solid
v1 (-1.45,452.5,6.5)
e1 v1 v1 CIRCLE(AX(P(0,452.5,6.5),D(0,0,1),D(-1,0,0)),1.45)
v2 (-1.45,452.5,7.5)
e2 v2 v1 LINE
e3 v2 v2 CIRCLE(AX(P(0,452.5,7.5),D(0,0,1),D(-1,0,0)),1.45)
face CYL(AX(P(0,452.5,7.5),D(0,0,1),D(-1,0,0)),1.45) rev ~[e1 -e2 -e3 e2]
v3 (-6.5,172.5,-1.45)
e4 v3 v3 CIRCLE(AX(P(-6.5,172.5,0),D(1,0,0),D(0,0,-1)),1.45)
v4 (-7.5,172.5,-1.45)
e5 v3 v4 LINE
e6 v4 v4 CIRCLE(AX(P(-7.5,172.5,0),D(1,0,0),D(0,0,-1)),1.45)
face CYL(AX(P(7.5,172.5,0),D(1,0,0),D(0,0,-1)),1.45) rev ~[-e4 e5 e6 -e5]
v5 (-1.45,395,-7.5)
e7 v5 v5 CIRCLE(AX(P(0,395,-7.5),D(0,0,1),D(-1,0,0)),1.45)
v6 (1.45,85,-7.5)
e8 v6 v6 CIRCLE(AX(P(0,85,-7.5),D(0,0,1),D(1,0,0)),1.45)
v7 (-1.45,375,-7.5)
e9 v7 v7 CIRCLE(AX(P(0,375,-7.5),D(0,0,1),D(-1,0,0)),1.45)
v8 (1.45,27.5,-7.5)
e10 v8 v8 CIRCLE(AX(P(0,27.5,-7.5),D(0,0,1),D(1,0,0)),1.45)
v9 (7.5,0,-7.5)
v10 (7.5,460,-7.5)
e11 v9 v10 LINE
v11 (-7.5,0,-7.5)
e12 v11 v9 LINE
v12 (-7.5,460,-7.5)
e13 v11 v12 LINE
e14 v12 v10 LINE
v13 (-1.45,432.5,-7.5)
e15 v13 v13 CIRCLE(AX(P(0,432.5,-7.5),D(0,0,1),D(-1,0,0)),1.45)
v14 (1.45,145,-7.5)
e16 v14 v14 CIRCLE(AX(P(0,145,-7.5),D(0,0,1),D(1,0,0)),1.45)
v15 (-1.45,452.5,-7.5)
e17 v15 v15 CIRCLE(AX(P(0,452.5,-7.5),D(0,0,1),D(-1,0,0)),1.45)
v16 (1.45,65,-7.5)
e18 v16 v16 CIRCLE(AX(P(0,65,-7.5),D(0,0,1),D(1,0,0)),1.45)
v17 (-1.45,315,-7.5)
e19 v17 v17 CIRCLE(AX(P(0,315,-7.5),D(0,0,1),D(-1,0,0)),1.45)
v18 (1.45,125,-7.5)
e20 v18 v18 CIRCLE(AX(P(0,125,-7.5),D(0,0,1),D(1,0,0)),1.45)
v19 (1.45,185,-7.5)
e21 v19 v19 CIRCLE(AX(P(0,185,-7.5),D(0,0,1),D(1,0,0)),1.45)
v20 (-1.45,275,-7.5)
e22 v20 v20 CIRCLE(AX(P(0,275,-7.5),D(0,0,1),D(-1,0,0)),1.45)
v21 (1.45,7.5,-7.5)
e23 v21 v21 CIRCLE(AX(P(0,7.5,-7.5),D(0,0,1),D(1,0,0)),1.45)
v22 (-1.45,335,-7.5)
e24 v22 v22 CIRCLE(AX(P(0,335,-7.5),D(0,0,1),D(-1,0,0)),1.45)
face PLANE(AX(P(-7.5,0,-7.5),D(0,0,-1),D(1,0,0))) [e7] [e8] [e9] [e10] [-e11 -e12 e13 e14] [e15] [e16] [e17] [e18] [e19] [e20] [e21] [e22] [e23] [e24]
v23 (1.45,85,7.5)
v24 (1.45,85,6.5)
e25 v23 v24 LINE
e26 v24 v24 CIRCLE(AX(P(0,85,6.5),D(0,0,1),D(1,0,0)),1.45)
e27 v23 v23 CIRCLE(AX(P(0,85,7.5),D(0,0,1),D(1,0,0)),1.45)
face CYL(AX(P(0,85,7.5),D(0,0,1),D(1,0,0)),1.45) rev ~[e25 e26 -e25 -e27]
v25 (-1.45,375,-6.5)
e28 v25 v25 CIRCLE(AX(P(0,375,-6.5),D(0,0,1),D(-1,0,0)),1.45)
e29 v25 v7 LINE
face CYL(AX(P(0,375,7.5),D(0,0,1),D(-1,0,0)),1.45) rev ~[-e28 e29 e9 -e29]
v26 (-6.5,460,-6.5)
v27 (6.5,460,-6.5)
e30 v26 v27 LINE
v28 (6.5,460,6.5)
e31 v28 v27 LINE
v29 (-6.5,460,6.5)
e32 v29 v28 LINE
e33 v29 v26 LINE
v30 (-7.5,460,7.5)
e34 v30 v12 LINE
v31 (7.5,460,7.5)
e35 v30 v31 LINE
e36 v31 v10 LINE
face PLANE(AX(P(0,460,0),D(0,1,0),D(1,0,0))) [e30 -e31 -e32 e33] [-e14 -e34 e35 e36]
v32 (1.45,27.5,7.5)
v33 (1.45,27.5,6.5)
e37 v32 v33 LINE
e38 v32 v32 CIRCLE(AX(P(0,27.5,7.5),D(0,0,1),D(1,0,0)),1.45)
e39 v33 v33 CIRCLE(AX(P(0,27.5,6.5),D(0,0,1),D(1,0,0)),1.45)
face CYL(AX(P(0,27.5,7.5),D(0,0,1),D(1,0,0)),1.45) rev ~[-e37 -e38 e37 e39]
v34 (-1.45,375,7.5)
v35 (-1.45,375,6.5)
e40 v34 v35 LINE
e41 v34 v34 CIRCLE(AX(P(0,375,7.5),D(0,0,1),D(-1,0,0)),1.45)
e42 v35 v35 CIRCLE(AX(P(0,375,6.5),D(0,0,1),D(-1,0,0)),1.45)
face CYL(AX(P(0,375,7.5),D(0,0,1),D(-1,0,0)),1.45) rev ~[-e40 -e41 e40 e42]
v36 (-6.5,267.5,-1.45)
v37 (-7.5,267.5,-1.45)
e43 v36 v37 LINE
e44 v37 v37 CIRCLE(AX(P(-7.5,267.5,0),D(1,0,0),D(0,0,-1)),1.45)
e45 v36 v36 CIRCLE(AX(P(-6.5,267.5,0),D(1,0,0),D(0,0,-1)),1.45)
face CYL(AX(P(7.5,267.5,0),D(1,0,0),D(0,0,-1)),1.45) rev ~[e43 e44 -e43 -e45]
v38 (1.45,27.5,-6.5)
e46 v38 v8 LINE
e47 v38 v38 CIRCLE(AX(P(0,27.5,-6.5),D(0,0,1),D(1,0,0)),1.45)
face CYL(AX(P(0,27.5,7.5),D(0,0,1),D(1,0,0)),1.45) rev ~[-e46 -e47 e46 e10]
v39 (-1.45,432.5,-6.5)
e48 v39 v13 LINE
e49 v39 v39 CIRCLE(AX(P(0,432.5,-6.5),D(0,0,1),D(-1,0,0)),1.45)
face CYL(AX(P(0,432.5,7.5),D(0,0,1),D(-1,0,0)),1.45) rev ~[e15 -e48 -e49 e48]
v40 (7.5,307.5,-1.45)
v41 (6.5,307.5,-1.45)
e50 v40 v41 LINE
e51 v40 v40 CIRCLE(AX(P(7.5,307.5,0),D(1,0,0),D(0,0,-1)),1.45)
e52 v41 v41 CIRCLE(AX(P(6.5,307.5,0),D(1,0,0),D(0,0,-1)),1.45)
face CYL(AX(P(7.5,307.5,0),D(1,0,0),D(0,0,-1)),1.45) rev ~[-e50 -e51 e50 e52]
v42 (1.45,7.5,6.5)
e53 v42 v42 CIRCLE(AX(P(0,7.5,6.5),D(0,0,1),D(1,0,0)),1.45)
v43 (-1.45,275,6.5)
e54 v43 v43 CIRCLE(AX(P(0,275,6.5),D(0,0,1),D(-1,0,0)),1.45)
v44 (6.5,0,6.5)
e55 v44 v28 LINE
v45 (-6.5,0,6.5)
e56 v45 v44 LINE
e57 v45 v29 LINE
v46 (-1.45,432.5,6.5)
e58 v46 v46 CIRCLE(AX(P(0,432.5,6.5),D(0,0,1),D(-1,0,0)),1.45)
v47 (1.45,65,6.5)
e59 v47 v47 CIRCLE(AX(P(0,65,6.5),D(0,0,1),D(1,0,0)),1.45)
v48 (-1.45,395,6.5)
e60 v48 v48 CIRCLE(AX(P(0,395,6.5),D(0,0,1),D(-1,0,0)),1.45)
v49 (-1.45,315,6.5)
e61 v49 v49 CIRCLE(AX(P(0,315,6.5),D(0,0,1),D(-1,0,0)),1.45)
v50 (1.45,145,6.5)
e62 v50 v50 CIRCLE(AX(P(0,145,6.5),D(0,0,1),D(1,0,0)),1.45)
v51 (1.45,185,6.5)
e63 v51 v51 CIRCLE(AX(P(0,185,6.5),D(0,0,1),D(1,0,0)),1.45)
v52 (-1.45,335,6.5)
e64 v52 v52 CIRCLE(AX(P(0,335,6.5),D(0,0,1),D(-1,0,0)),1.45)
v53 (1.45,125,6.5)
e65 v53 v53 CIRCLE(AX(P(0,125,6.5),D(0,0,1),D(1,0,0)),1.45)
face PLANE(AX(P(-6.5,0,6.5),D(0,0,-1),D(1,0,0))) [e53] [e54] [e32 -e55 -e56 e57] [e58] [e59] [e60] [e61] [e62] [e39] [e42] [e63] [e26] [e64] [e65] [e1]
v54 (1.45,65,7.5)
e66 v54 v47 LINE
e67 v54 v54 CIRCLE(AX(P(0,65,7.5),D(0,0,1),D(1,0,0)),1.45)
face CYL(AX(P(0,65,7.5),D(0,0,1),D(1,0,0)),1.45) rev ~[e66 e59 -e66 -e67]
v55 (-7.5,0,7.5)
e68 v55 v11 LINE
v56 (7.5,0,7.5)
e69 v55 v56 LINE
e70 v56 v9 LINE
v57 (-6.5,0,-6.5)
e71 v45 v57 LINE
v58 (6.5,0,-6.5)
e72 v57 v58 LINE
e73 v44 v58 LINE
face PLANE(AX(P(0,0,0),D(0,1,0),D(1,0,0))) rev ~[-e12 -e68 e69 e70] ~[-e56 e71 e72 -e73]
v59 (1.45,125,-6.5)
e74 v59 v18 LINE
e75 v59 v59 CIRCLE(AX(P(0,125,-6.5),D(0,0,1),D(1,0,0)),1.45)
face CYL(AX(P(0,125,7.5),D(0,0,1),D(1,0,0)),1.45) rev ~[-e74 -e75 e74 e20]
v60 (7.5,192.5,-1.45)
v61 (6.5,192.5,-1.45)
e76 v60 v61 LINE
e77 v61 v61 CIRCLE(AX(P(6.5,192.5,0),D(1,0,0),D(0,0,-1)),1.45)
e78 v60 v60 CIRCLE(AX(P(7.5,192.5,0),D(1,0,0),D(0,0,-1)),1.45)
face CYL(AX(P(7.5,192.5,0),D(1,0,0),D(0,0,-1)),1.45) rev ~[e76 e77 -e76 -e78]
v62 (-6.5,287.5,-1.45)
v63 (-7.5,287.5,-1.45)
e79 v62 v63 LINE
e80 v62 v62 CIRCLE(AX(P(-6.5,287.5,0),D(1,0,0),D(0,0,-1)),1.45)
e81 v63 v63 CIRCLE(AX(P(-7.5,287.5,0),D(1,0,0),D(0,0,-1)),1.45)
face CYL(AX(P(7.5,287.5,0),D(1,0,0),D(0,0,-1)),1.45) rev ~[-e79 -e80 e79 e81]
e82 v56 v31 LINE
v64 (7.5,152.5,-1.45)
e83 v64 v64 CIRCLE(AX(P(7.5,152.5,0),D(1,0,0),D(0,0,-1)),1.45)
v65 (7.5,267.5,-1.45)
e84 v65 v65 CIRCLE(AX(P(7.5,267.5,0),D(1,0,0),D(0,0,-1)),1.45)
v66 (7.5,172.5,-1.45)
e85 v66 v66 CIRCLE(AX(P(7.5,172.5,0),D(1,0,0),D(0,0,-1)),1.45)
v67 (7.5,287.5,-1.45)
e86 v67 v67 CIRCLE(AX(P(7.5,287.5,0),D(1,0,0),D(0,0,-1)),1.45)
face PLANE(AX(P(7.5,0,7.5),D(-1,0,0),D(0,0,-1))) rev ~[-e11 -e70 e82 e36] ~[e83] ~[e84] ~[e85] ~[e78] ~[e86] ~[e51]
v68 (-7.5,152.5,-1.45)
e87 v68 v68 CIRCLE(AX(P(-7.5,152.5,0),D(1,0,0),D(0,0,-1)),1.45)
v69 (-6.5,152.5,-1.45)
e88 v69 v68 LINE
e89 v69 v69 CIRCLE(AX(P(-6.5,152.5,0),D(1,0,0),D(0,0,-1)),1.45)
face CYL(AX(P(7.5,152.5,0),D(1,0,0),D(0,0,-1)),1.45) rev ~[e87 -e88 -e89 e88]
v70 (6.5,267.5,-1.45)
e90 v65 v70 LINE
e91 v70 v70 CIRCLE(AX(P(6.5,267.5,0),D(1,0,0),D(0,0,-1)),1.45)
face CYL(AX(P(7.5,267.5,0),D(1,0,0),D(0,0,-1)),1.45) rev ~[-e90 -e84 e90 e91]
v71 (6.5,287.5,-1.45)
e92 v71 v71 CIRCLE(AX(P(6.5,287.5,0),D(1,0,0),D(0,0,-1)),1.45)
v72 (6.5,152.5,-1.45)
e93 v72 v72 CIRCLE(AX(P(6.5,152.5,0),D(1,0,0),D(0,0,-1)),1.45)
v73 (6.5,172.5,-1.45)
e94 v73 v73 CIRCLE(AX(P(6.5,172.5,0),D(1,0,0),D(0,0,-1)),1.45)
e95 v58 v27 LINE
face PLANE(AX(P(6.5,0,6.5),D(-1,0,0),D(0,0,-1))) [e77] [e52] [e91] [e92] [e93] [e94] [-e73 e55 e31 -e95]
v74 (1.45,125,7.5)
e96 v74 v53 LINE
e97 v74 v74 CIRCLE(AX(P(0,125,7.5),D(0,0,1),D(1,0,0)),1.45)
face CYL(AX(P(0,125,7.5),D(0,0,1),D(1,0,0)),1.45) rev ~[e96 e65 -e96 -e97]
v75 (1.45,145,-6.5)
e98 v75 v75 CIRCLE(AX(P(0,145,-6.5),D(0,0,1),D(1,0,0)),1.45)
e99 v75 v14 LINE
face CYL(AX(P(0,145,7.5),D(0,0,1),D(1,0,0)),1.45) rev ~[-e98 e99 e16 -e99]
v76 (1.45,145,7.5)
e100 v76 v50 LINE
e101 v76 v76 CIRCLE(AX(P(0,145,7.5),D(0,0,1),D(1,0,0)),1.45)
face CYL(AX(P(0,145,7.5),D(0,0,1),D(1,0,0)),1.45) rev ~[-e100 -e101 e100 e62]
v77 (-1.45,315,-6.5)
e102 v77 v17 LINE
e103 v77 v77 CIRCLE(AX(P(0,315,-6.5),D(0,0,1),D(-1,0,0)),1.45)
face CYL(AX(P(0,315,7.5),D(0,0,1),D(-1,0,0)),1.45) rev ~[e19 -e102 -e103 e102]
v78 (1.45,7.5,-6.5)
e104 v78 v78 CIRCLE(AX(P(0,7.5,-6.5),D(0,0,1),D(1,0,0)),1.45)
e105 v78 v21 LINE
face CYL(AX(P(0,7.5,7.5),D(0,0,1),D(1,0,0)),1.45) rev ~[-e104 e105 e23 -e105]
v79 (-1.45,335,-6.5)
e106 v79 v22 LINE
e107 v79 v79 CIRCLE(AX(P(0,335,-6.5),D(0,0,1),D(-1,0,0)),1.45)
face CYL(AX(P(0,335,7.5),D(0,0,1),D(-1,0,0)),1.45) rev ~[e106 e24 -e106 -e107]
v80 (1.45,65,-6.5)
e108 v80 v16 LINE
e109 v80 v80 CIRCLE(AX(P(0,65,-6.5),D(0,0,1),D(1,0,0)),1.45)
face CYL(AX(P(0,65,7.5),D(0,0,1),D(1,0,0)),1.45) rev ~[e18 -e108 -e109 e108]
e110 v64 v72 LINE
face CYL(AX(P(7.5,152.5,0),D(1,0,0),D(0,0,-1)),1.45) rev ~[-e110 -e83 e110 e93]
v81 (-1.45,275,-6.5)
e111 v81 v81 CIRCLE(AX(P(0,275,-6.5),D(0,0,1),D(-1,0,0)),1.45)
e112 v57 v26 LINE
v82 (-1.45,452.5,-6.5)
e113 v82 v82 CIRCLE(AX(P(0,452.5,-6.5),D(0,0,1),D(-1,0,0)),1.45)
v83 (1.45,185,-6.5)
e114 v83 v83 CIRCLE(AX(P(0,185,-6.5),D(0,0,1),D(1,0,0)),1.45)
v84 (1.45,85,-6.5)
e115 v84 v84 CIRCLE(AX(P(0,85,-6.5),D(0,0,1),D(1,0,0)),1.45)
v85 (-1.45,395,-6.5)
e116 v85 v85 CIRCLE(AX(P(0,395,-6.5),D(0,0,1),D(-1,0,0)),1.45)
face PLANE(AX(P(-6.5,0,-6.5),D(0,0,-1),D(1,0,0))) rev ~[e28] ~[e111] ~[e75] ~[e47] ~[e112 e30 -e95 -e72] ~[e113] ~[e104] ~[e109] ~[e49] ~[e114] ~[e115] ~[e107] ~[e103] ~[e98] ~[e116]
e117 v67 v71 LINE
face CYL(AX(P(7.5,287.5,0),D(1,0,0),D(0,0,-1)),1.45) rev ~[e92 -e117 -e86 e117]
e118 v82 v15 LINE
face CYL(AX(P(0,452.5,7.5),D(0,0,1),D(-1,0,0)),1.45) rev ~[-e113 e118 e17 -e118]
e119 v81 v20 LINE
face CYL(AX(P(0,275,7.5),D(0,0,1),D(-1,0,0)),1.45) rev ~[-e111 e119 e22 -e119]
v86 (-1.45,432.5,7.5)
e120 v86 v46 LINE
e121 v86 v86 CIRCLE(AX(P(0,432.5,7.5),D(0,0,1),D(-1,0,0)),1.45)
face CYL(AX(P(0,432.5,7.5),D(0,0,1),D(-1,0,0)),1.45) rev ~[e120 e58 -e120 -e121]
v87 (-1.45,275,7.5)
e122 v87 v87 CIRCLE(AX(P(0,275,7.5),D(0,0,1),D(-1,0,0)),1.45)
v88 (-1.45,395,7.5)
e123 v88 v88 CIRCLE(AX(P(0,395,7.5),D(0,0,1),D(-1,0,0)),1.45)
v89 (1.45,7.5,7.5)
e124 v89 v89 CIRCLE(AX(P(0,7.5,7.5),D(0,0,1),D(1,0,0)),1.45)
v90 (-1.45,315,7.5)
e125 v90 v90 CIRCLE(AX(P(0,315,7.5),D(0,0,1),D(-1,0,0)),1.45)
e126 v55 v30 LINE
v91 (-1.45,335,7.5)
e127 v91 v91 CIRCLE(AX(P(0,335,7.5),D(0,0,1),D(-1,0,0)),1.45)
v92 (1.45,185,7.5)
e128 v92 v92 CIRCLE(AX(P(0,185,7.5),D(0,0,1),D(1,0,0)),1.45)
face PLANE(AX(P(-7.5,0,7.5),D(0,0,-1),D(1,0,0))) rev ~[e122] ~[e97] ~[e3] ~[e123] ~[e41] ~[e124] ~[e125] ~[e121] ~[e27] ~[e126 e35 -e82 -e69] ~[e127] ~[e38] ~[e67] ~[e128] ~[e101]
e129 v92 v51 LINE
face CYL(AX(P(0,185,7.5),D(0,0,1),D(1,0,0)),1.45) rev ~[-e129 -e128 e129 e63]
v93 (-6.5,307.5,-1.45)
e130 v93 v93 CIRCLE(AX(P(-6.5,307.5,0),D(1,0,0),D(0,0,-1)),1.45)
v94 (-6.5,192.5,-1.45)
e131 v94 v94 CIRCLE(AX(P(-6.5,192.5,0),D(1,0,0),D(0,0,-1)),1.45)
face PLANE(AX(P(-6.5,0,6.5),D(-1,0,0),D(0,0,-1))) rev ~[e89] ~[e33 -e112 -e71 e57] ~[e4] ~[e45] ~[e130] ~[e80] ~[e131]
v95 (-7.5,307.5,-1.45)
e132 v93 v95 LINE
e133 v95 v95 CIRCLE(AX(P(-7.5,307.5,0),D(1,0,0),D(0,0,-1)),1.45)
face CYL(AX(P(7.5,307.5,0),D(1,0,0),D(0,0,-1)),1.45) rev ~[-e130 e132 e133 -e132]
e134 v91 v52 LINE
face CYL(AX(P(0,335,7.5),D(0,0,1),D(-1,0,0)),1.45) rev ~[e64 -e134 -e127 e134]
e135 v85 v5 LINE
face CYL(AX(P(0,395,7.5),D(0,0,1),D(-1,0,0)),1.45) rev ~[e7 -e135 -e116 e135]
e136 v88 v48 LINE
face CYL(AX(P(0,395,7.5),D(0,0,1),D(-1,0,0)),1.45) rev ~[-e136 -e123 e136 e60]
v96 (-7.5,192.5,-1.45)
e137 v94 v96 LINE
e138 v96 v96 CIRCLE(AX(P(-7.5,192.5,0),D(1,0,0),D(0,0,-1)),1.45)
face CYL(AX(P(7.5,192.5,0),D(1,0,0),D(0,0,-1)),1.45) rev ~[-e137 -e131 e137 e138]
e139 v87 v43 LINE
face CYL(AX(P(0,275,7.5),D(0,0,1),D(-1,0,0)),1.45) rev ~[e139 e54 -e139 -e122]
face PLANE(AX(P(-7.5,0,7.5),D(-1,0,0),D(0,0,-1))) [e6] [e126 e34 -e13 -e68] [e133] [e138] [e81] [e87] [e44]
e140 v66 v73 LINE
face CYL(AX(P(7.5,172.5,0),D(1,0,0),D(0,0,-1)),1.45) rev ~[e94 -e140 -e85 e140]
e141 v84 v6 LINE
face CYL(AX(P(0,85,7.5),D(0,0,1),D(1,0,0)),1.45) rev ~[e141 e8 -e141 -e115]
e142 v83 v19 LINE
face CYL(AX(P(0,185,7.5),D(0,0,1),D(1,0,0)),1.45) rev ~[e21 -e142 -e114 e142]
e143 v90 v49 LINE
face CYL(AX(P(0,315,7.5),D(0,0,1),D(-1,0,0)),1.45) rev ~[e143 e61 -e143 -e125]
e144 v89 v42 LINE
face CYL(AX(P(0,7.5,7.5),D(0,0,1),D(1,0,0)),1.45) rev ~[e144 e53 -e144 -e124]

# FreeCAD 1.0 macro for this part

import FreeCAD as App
import Part
import Sketcher

doc = App.newDocument("Part")
body = doc.addObject("PartDesign::Body", "Body")

# Sketch on XZ plane
sketch1 = body.newObject("Sketcher::SketchObject", "Sketch")
sketch1.AttachmentSupport = (doc.getObject("XZ_Plane"), [""])
sketch1.MapMode = "FlatFace"
sketch1.addGeometry([
    Part.LineSegment(App.Vector(-7.5, -7.5, 0), App.Vector(-7.5, 7.5, 0)),  # 0
    Part.LineSegment(App.Vector(-7.5, 7.5, 0), App.Vector(7.5, 7.5, 0)),  # 1
    Part.LineSegment(App.Vector(7.5, 7.5, 0), App.Vector(7.5, -7.5, 0)),  # 2
    Part.LineSegment(App.Vector(7.5, -7.5, 0), App.Vector(-7.5, -7.5, 0)),  # 3
    Part.LineSegment(App.Vector(6.5, 6.5, 0), App.Vector(-6.5, 6.5, 0)),  # 4
    Part.LineSegment(App.Vector(-6.5, 6.5, 0), App.Vector(-6.5, -6.5, 0)),  # 5
    Part.LineSegment(App.Vector(-6.5, -6.5, 0), App.Vector(6.5, -6.5, 0)),  # 6
    Part.LineSegment(App.Vector(6.5, -6.5, 0), App.Vector(6.5, 6.5, 0)),  # 7
], False)
sketch1.addConstraint([
    Sketcher.Constraint("Coincident", 0, 2, 1, 1),
    Sketcher.Constraint("Coincident", 1, 2, 2, 1),
    Sketcher.Constraint("Coincident", 2, 2, 3, 1),
    Sketcher.Constraint("Coincident", 3, 2, 0, 1),
    Sketcher.Constraint("Coincident", 4, 2, 5, 1),
    Sketcher.Constraint("Coincident", 5, 2, 6, 1),
    Sketcher.Constraint("Coincident", 6, 2, 7, 1),
    Sketcher.Constraint("Coincident", 7, 2, 4, 1),
    Sketcher.Constraint("Vertical", 0),
    Sketcher.Constraint("Horizontal", 1),
    Sketcher.Constraint("Vertical", 2),
    Sketcher.Constraint("Horizontal", 3),
    Sketcher.Constraint("Horizontal", 4),
    Sketcher.Constraint("Vertical", 5),
    Sketcher.Constraint("Horizontal", 6),
    Sketcher.Constraint("Vertical", 7),
    Sketcher.Constraint("Symmetric", 0, 2, 2, 2, -1, 1),
    Sketcher.Constraint("Symmetric", 4, 2, 6, 2, -1, 1),
    Sketcher.Constraint("Equal", 3, 0),
    Sketcher.Constraint("Equal", 6, 5),
    Sketcher.Constraint("DistanceX", 1, 1, 1, 2, 15.0),
    Sketcher.Constraint("DistanceX", 4, 2, 4, 1, 13.0),
])
pad1 = body.newObject("PartDesign::Pad", "Pad")
pad1.Profile = sketch1
pad1.Length = 460
pad1.Reversed = True

# Sketch on XY plane
sketch2 = body.newObject("Sketcher::SketchObject", "Sketch001")
sketch2.AttachmentSupport = (doc.getObject("XY_Plane"), [""])
sketch2.MapMode = "FlatFace"
sketch2.AttachmentOffset = App.Placement(App.Vector(0, 0, 7.5), App.Rotation())
sketch2.addGeometry([
    Part.Circle(App.Vector(0, 7.5, 0), App.Vector(0, 0, 1), 1.45),  # 0
    Part.Circle(App.Vector(0, 27.5, 0), App.Vector(0, 0, 1), 1.45),  # 1
    Part.Circle(App.Vector(0, 432.5, 0), App.Vector(0, 0, 1), 1.45),  # 2
    Part.Circle(App.Vector(0, 452.5, 0), App.Vector(0, 0, 1), 1.45),  # 3
    Part.Circle(App.Vector(0, 65, 0), App.Vector(0, 0, 1), 1.45),  # 4
    Part.Circle(App.Vector(0, 85, 0), App.Vector(0, 0, 1), 1.45),  # 5
    Part.Circle(App.Vector(0, 125, 0), App.Vector(0, 0, 1), 1.45),  # 6
    Part.Circle(App.Vector(0, 145, 0), App.Vector(0, 0, 1), 1.45),  # 7
    Part.Circle(App.Vector(0, 315, 0), App.Vector(0, 0, 1), 1.45),  # 8
    Part.Circle(App.Vector(0, 335, 0), App.Vector(0, 0, 1), 1.45),  # 9
    Part.Circle(App.Vector(0, 375, 0), App.Vector(0, 0, 1), 1.45),  # 10
    Part.Circle(App.Vector(0, 395, 0), App.Vector(0, 0, 1), 1.45),  # 11
    Part.Circle(App.Vector(0, 185, 0), App.Vector(0, 0, 1), 1.45),  # 12
    Part.Circle(App.Vector(0, 275, 0), App.Vector(0, 0, 1), 1.45),  # 13
], False)
sketch2.addConstraint([
    Sketcher.Constraint("Equal", 0, 1),
    Sketcher.Constraint("Equal", 1, 2),
    Sketcher.Constraint("Equal", 2, 3),
    Sketcher.Constraint("Equal", 3, 4),
    Sketcher.Constraint("Equal", 4, 5),
    Sketcher.Constraint("Equal", 5, 6),
    Sketcher.Constraint("Equal", 6, 7),
    Sketcher.Constraint("Equal", 7, 8),
    Sketcher.Constraint("Equal", 8, 9),
    Sketcher.Constraint("Equal", 9, 10),
    Sketcher.Constraint("Equal", 10, 11),
    Sketcher.Constraint("Equal", 11, 12),
    Sketcher.Constraint("Equal", 12, 13),
    Sketcher.Constraint("PointOnObject", 0, 3, -2),
    Sketcher.Constraint("PointOnObject", 1, 3, -2),
    Sketcher.Constraint("PointOnObject", 2, 3, -2),
    Sketcher.Constraint("PointOnObject", 3, 3, -2),
    Sketcher.Constraint("PointOnObject", 4, 3, -2),
    Sketcher.Constraint("PointOnObject", 5, 3, -2),
    Sketcher.Constraint("PointOnObject", 6, 3, -2),
    Sketcher.Constraint("PointOnObject", 7, 3, -2),
    Sketcher.Constraint("PointOnObject", 8, 3, -2),
    Sketcher.Constraint("PointOnObject", 9, 3, -2),
    Sketcher.Constraint("PointOnObject", 10, 3, -2),
    Sketcher.Constraint("PointOnObject", 11, 3, -2),
    Sketcher.Constraint("PointOnObject", 12, 3, -2),
    Sketcher.Constraint("PointOnObject", 13, 3, -2),
    Sketcher.Constraint("Diameter", 0, 2.9),
    Sketcher.Constraint("DistanceY", -1, 1, 4, 3, 65.0),
    Sketcher.Constraint("DistanceY", -1, 1, 5, 3, 85.0),
    Sketcher.Constraint("DistanceY", -1, 1, 6, 3, 125.0),
    Sketcher.Constraint("DistanceY", -1, 1, 7, 3, 145.0),
    Sketcher.Constraint("DistanceY", -1, 1, 8, 3, 315.0),
    Sketcher.Constraint("DistanceY", -1, 1, 9, 3, 335.0),
    Sketcher.Constraint("DistanceY", -1, 1, 10, 3, 375.0),
    Sketcher.Constraint("DistanceY", -1, 1, 11, 3, 395.0),
    Sketcher.Constraint("DistanceY", -1, 1, 12, 3, 185.0),
    Sketcher.Constraint("DistanceY", -1, 1, 13, 3, 275.0),
    Sketcher.Constraint("DistanceY", 0, 3, 1, 3, 20.0),
    Sketcher.Constraint("DistanceY", 1, 3, 2, 3, 405.0),
    Sketcher.Constraint("DistanceY", 2, 3, 3, 3, 20.0),
    Sketcher.Constraint("DistanceY", -1, 1, 0, 3, 7.5),
])
pocket1 = body.newObject("PartDesign::Pocket", "Pocket")
pocket1.Profile = sketch2
pocket1.Type = "ThroughAll"

# Sketch on YZ plane
sketch3 = body.newObject("Sketcher::SketchObject", "Sketch002")
sketch3.AttachmentSupport = (doc.getObject("YZ_Plane"), [""])
sketch3.MapMode = "FlatFace"
sketch3.AttachmentOffset = App.Placement(App.Vector(0, 0, 7.5), App.Rotation())
sketch3.addGeometry([
    Part.Circle(App.Vector(152.5, 0, 0), App.Vector(0, 0, 1), 1.45),  # 0
    Part.Circle(App.Vector(172.5, 0, 0), App.Vector(0, 0, 1), 1.45),  # 1
    Part.Circle(App.Vector(287.5, 0, 0), App.Vector(0, 0, 1), 1.45),  # 2
    Part.Circle(App.Vector(307.5, 0, 0), App.Vector(0, 0, 1), 1.45),  # 3
    Part.Circle(App.Vector(192.5, 0, 0), App.Vector(0, 0, 1), 1.45),  # 4
    Part.Circle(App.Vector(267.5, 0, 0), App.Vector(0, 0, 1), 1.45),  # 5
], False)
sketch3.addConstraint([
    Sketcher.Constraint("Equal", 0, 1),
    Sketcher.Constraint("Equal", 1, 2),
    Sketcher.Constraint("Equal", 2, 3),
    Sketcher.Constraint("Equal", 3, 4),
    Sketcher.Constraint("Equal", 4, 5),
    Sketcher.Constraint("PointOnObject", 0, 3, -1),
    Sketcher.Constraint("PointOnObject", 1, 3, -1),
    Sketcher.Constraint("PointOnObject", 2, 3, -1),
    Sketcher.Constraint("PointOnObject", 3, 3, -1),
    Sketcher.Constraint("PointOnObject", 4, 3, -1),
    Sketcher.Constraint("PointOnObject", 5, 3, -1),
    Sketcher.Constraint("Diameter", 0, 2.9),
    Sketcher.Constraint("DistanceX", 0, 3, 1, 3, 20.0),
    Sketcher.Constraint("DistanceX", 1, 3, 2, 3, 115.0),
    Sketcher.Constraint("DistanceX", 2, 3, 3, 3, 20.0),
    Sketcher.Constraint("DistanceX", 1, 3, 4, 3, 20.0),
    Sketcher.Constraint("DistanceX", 5, 3, 2, 3, 20.0),
    Sketcher.Constraint("DistanceX", -1, 1, 0, 3, 152.5),
])
pocket2 = body.newObject("PartDesign::Pocket", "Pocket001")
pocket2.Profile = sketch3
pocket2.Type = "ThroughAll"

doc.recompute()
